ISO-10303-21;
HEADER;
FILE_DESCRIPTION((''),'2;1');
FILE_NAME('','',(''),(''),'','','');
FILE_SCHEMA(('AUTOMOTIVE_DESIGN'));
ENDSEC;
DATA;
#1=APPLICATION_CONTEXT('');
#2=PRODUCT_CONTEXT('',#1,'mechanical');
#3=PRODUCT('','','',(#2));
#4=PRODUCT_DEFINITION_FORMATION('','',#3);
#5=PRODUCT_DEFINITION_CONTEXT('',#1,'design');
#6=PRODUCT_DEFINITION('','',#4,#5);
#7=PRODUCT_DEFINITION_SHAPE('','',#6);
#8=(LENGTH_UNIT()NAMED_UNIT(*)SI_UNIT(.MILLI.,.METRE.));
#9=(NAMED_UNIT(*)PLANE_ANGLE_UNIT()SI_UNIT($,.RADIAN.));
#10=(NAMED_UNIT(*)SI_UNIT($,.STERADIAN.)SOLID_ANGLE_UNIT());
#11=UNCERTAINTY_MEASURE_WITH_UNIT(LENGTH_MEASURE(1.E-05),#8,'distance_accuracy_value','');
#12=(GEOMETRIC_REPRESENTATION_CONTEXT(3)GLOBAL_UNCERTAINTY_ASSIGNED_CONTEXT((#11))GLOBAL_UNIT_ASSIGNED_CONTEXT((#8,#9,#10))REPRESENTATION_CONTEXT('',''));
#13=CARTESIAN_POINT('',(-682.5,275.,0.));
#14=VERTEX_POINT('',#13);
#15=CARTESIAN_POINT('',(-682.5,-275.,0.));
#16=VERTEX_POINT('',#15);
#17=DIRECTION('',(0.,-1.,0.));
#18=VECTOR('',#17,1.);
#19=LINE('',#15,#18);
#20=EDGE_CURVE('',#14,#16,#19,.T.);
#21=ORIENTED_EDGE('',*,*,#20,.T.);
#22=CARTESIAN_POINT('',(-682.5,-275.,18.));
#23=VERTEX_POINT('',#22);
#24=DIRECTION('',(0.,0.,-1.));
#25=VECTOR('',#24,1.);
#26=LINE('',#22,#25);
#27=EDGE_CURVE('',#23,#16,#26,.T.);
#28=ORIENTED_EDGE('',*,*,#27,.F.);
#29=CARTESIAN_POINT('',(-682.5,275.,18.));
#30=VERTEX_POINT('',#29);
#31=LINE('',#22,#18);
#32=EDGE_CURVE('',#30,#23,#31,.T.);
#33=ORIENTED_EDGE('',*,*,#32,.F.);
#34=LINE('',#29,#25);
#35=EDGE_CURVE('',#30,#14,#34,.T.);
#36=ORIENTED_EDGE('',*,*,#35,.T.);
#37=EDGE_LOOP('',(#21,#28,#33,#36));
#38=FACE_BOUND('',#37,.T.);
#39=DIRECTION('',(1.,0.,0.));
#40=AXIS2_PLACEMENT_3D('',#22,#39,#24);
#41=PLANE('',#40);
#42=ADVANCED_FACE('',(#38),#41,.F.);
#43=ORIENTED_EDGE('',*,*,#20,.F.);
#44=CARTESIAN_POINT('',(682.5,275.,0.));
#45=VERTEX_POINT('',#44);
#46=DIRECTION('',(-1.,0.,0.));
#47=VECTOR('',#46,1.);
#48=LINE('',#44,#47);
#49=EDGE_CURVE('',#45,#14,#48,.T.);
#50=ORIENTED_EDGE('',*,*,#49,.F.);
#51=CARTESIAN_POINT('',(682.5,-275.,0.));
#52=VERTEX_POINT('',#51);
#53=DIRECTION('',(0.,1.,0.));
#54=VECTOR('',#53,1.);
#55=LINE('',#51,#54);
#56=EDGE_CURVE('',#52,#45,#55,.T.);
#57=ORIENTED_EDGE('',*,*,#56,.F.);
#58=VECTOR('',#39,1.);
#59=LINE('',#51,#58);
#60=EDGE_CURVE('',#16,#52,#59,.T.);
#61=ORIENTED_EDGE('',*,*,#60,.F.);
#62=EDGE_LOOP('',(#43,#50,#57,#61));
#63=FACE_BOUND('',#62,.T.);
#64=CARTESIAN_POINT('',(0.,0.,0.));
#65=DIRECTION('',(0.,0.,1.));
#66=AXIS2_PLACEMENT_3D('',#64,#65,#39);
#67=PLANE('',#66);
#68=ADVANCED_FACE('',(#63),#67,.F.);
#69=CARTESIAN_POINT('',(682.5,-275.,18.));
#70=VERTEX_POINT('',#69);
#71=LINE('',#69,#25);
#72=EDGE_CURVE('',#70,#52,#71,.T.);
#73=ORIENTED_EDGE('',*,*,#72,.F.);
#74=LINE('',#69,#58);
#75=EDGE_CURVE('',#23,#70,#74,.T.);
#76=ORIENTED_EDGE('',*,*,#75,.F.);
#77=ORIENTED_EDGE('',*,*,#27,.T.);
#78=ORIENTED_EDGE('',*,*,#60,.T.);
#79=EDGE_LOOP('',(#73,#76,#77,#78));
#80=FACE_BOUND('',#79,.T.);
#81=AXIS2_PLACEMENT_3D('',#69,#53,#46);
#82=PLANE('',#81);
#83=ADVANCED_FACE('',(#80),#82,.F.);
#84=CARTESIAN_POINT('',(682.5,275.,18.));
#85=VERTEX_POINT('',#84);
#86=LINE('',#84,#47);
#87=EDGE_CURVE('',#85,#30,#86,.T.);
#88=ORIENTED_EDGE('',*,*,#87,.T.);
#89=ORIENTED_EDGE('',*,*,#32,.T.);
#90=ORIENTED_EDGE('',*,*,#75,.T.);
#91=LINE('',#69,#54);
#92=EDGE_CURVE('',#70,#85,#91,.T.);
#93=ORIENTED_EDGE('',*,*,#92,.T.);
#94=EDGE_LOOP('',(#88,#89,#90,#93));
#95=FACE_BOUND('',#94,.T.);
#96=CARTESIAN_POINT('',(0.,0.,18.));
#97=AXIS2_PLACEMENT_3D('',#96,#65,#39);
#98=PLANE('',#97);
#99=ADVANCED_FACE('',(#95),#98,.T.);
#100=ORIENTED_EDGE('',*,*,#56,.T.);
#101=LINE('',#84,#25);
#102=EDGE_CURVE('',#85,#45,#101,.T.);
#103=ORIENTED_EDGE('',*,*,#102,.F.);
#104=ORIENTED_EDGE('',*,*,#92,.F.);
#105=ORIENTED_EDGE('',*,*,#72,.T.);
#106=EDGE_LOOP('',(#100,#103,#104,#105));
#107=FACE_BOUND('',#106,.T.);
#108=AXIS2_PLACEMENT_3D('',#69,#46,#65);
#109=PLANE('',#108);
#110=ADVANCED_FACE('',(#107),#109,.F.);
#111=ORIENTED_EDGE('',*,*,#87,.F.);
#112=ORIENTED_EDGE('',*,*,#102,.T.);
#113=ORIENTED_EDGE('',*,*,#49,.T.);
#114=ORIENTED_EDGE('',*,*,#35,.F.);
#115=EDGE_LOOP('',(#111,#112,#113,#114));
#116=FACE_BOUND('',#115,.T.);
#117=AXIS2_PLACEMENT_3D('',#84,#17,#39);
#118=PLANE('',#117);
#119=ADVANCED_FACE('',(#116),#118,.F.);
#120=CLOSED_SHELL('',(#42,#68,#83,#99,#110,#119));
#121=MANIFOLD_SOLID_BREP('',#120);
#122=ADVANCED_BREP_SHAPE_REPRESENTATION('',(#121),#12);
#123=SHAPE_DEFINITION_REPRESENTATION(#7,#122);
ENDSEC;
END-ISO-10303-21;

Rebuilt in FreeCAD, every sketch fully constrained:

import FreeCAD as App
import Part
import Sketcher

V = App.Vector


def add_polygon(sketch, points):
    """Adds a closed chain of lines whose ends are joined by coincident constraints."""
    first, n = sketch.GeometryCount, len(points)
    for a, b in zip(points, points[1:] + points[:1]):
        sketch.addGeometry(Part.LineSegment(App.Vector(*a, 0), App.Vector(*b, 0)), False)
    for i in range(n):
        sketch.addConstraint(Sketcher.Constraint("Coincident", first + i, 2, first + (i + 1) % n, 1))

doc = App.newDocument("Part")
body = doc.addObject("PartDesign::Body", "Body")

# Sketch on XY plane
sketch1 = body.newObject("Sketcher::SketchObject", "Sketch")
sketch1.AttachmentSupport = (doc.getObject("XY_Plane"), [""])
sketch1.MapMode = "FlatFace"
add_polygon(sketch1, [(-682, 275), (-682, -275), (682, -275), (682, 275)])  # lines 0-3
sketch1.addConstraint(Sketcher.Constraint("Vertical", 0))
sketch1.addConstraint(Sketcher.Constraint("Horizontal", 1))
sketch1.addConstraint(Sketcher.Constraint("Vertical", 2))
sketch1.addConstraint(Sketcher.Constraint("Horizontal", 3))
sketch1.addConstraint(Sketcher.Constraint("Symmetric", 0, 2, 2, 2, -1, 1))
sketch1.addConstraint(Sketcher.Constraint("DistanceX", 1, 1, 1, 2, 1365.0))
sketch1.addConstraint(Sketcher.Constraint("DistanceY", 0, 2, 0, 1, 550.0))
pad1 = body.newObject("PartDesign::Pad", "Pad")
pad1.Profile = sketch1
pad1.Length = 18

doc.recompute()
